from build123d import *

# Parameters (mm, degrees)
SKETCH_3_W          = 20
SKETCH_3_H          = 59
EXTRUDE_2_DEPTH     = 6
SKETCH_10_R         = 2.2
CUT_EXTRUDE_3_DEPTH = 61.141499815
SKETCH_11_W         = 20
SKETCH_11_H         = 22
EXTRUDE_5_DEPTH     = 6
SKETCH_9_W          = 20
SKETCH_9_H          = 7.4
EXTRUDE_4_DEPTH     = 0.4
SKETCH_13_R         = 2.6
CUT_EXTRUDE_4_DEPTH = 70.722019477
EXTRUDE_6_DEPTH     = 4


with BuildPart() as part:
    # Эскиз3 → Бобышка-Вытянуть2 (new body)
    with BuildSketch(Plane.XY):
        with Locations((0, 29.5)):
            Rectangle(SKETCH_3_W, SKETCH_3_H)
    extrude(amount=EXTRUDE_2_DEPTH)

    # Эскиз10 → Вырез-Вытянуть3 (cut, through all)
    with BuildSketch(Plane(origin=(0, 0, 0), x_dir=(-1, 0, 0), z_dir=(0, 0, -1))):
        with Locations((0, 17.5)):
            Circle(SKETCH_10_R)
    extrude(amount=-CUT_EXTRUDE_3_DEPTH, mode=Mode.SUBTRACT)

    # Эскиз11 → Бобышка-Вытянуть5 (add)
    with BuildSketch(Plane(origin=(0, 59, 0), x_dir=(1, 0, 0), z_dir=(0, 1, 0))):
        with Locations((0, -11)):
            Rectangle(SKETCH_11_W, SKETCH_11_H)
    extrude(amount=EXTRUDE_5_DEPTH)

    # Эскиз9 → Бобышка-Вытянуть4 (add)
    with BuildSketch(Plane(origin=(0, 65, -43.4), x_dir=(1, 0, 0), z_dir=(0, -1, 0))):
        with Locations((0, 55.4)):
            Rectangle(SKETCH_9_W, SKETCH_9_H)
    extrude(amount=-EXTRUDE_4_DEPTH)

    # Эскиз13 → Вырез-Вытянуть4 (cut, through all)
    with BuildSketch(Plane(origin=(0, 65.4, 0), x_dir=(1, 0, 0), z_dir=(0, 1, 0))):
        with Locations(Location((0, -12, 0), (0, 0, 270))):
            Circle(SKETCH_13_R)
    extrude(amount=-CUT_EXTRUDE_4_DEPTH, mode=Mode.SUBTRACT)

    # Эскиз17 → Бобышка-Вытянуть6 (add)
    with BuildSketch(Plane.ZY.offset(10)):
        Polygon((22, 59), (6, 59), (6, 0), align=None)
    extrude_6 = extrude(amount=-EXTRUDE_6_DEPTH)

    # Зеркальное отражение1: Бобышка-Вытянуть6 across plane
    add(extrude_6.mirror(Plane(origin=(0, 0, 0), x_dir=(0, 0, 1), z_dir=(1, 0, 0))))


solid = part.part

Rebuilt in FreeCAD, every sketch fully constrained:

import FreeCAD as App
import Part
import Sketcher


def add_polygon(sketch, points):
    """Adds a closed chain of lines whose ends are joined by coincident constraints."""
    first, n = sketch.GeometryCount, len(points)
    for a, b in zip(points, points[1:] + points[:1]):
        sketch.addGeometry(Part.LineSegment(App.Vector(*a, 0), App.Vector(*b, 0)), False)
    for i in range(n):
        sketch.addConstraint(Sketcher.Constraint("Coincident", first + i, 2, first + (i + 1) % n, 1))

doc = App.newDocument("Part")
params = doc.addObject("Spreadsheet::Sheet", "Params")
for row, (alias, value) in enumerate([
    ("sketch1_width", "20 mm"),
    ("sketch1_height", "59 mm"),
    ("pad1_length", "6 mm"),
    ("sketch2_diameter", "4.4 mm"),
    ("sketch3_width", "20 mm"),
    ("sketch3_height", "22 mm"),
    ("pad2_length", "6 mm"),
    ("sketch4_width", "20 mm"),
    ("sketch4_height", "7.4 mm"),
    ("pad3_length", "0.4 mm"),
    ("sketch5_diameter", "5.2 mm"),
    ("sketch6_width", "59 mm"),
    ("sketch6_height", "16 mm"),
    ("pad4_length", "4 mm"),
], start=1):
    params.set(f"A{row}", alias)
    params.set(f"B{row}", "=" + value)
    params.setAlias(f"B{row}", alias)

body = doc.addObject("PartDesign::Body", "Body")

sketch1 = body.newObject("Sketcher::SketchObject", "Sketch")
sketch1.AttachmentSupport = (doc.getObject("XY_Plane"), [""])
sketch1.MapMode = "FlatFace"
add_polygon(sketch1, [(-10, 59), (-10, 0), (10, 0), (10, 59)])
sketch1.addConstraint([
    Sketcher.Constraint("Vertical", 0),
    Sketcher.Constraint("Horizontal", 1),
    Sketcher.Constraint("Vertical", 2),
    Sketcher.Constraint("Horizontal", 3),
    Sketcher.Constraint("Symmetric", 0, 2, 1, 2, -1, 1),
    Sketcher.Constraint("DistanceX", 1, 1, 1, 2, 20.0),
    Sketcher.Constraint("DistanceY", 0, 2, 0, 1, 59.0),
])
sketch1.setExpression("Constraints[9]", "Params.sketch1_width")
sketch1.setExpression("Constraints[10]", "Params.sketch1_height")
pad1 = body.newObject("PartDesign::Pad", "Pad")
pad1.Profile = sketch1
pad1.setExpression("Length", "Params.pad1_length")

sketch2 = body.newObject("Sketcher::SketchObject", "Sketch001")
sketch2.AttachmentSupport = (doc.getObject("XY_Plane"), [""])
sketch2.MapMode = "FlatFace"
sketch2.addGeometry(Part.Circle(App.Vector(0, 17.5, 0), App.Vector(0, 0, 1), 2.2), False)
sketch2.addConstraint([
    Sketcher.Constraint("PointOnObject", 0, 3, -2),
    Sketcher.Constraint("Diameter", 0, 4.4),
    Sketcher.Constraint("DistanceY", -1, 1, 0, 3, 17.5),
])
sketch2.setExpression("Constraints[1]", "Params.sketch2_diameter")
pocket1 = body.newObject("PartDesign::Pocket", "Pocket")
pocket1.Profile = sketch2
pocket1.Type = "ThroughAll"
pocket1.Reversed = True

sketch3 = body.newObject("Sketcher::SketchObject", "Sketch002")
sketch3.AttachmentSupport = (doc.getObject("XZ_Plane"), [""])
sketch3.MapMode = "FlatFace"
sketch3.AttachmentOffset = App.Placement(App.Vector(0, 0, -59), App.Rotation())
add_polygon(sketch3, [(-10, 0), (-10, 22), (10, 22), (10, 0)])
sketch3.addConstraint([
    Sketcher.Constraint("Vertical", 0),
    Sketcher.Constraint("Horizontal", 1),
    Sketcher.Constraint("Vertical", 2),
    Sketcher.Constraint("Horizontal", 3),
    Sketcher.Constraint("Symmetric", 2, 2, 3, 2, -1, 1),
    Sketcher.Constraint("DistanceX", 1, 1, 1, 2, 20.0),
    Sketcher.Constraint("DistanceY", 0, 1, 0, 2, 22.0),
])
sketch3.setExpression("Constraints[9]", "Params.sketch3_width")
sketch3.setExpression("Constraints[10]", "Params.sketch3_height")
pad2 = body.newObject("PartDesign::Pad", "Pad001")
pad2.Profile = sketch3
pad2.setExpression("Length", "Params.pad2_length")
pad2.Reversed = True

sketch4 = body.newObject("Sketcher::SketchObject", "Sketch003")
sketch4.AttachmentSupport = (doc.getObject("XZ_Plane"), [""])
sketch4.MapMode = "FlatFace"
sketch4.AttachmentOffset = App.Placement(App.Vector(0, 0, -65), App.Rotation())
add_polygon(sketch4, [(-10, 16), (-10, 8), (10, 8), (10, 16)])
sketch4.addConstraint([
    Sketcher.Constraint("Vertical", 0),
    Sketcher.Constraint("Horizontal", 1),
    Sketcher.Constraint("Vertical", 2),
    Sketcher.Constraint("Horizontal", 3),
    Sketcher.Constraint("DistanceX", 1, 1, 1, 2, 20.0),
    Sketcher.Constraint("DistanceY", 0, 2, 0, 1, 7.4),
    Sketcher.Constraint("DistanceX", 0, 2, -1, 1, 10.0),
    Sketcher.Constraint("DistanceY", -1, 1, 0, 2, 8.3),
])
sketch4.setExpression("Constraints[8]", "Params.sketch4_width")
sketch4.setExpression("Constraints[9]", "Params.sketch4_height")
pad3 = body.newObject("PartDesign::Pad", "Pad002")
pad3.Profile = sketch4
pad3.setExpression("Length", "Params.pad3_length")
pad3.Reversed = True

sketch5 = body.newObject("Sketcher::SketchObject", "Sketch004")
sketch5.AttachmentSupport = (doc.getObject("XZ_Plane"), [""])
sketch5.MapMode = "FlatFace"
sketch5.AttachmentOffset = App.Placement(App.Vector(0, 0, -65.4), App.Rotation())
sketch5.addGeometry(Part.Circle(App.Vector(0, 12, 0), App.Vector(0, 0, 1), 2.6), False)
sketch5.addConstraint([
    Sketcher.Constraint("PointOnObject", 0, 3, -2),
    Sketcher.Constraint("Diameter", 0, 5.2),
    Sketcher.Constraint("DistanceY", -1, 1, 0, 3, 12.0),
])
sketch5.setExpression("Constraints[1]", "Params.sketch5_diameter")
pocket2 = body.newObject("PartDesign::Pocket", "Pocket001")
pocket2.Profile = sketch5
pocket2.Type = "ThroughAll"
pocket2.Reversed = True

sketch6 = body.newObject("Sketcher::SketchObject", "Sketch005")
sketch6.AttachmentSupport = (doc.getObject("YZ_Plane"), [""])
sketch6.MapMode = "FlatFace"
sketch6.AttachmentOffset = App.Placement(App.Vector(0, 0, -10), App.Rotation())
add_polygon(sketch6, [(59, 22), (59, 6), (0, 6)])
sketch6.addConstraint([
    Sketcher.Constraint("Vertical", 0),
    Sketcher.Constraint("Horizontal", 1),
    Sketcher.Constraint("PointOnObject", 1, 2, -2),
    Sketcher.Constraint("DistanceX", 1, 2, 1, 1, 59.0),
    Sketcher.Constraint("DistanceY", 0, 2, 0, 1, 16.0),
    Sketcher.Constraint("DistanceY", -1, 1, 0, 2, 6.0),
])
sketch6.setExpression("Constraints[6]", "Params.sketch6_width")
sketch6.setExpression("Constraints[7]", "Params.sketch6_height")
pad4 = body.newObject("PartDesign::Pad", "Pad003")
pad4.Profile = sketch6
pad4.setExpression("Length", "Params.pad4_length")
doc.recompute()

mirrored = body.newObject("PartDesign::Mirrored", "Mirrored")
mirrored.Originals = [pad4]
mirrored.MirrorPlane = (doc.getObject("YZ_Plane"), [""])
body.Tip = mirrored

doc.recompute()
